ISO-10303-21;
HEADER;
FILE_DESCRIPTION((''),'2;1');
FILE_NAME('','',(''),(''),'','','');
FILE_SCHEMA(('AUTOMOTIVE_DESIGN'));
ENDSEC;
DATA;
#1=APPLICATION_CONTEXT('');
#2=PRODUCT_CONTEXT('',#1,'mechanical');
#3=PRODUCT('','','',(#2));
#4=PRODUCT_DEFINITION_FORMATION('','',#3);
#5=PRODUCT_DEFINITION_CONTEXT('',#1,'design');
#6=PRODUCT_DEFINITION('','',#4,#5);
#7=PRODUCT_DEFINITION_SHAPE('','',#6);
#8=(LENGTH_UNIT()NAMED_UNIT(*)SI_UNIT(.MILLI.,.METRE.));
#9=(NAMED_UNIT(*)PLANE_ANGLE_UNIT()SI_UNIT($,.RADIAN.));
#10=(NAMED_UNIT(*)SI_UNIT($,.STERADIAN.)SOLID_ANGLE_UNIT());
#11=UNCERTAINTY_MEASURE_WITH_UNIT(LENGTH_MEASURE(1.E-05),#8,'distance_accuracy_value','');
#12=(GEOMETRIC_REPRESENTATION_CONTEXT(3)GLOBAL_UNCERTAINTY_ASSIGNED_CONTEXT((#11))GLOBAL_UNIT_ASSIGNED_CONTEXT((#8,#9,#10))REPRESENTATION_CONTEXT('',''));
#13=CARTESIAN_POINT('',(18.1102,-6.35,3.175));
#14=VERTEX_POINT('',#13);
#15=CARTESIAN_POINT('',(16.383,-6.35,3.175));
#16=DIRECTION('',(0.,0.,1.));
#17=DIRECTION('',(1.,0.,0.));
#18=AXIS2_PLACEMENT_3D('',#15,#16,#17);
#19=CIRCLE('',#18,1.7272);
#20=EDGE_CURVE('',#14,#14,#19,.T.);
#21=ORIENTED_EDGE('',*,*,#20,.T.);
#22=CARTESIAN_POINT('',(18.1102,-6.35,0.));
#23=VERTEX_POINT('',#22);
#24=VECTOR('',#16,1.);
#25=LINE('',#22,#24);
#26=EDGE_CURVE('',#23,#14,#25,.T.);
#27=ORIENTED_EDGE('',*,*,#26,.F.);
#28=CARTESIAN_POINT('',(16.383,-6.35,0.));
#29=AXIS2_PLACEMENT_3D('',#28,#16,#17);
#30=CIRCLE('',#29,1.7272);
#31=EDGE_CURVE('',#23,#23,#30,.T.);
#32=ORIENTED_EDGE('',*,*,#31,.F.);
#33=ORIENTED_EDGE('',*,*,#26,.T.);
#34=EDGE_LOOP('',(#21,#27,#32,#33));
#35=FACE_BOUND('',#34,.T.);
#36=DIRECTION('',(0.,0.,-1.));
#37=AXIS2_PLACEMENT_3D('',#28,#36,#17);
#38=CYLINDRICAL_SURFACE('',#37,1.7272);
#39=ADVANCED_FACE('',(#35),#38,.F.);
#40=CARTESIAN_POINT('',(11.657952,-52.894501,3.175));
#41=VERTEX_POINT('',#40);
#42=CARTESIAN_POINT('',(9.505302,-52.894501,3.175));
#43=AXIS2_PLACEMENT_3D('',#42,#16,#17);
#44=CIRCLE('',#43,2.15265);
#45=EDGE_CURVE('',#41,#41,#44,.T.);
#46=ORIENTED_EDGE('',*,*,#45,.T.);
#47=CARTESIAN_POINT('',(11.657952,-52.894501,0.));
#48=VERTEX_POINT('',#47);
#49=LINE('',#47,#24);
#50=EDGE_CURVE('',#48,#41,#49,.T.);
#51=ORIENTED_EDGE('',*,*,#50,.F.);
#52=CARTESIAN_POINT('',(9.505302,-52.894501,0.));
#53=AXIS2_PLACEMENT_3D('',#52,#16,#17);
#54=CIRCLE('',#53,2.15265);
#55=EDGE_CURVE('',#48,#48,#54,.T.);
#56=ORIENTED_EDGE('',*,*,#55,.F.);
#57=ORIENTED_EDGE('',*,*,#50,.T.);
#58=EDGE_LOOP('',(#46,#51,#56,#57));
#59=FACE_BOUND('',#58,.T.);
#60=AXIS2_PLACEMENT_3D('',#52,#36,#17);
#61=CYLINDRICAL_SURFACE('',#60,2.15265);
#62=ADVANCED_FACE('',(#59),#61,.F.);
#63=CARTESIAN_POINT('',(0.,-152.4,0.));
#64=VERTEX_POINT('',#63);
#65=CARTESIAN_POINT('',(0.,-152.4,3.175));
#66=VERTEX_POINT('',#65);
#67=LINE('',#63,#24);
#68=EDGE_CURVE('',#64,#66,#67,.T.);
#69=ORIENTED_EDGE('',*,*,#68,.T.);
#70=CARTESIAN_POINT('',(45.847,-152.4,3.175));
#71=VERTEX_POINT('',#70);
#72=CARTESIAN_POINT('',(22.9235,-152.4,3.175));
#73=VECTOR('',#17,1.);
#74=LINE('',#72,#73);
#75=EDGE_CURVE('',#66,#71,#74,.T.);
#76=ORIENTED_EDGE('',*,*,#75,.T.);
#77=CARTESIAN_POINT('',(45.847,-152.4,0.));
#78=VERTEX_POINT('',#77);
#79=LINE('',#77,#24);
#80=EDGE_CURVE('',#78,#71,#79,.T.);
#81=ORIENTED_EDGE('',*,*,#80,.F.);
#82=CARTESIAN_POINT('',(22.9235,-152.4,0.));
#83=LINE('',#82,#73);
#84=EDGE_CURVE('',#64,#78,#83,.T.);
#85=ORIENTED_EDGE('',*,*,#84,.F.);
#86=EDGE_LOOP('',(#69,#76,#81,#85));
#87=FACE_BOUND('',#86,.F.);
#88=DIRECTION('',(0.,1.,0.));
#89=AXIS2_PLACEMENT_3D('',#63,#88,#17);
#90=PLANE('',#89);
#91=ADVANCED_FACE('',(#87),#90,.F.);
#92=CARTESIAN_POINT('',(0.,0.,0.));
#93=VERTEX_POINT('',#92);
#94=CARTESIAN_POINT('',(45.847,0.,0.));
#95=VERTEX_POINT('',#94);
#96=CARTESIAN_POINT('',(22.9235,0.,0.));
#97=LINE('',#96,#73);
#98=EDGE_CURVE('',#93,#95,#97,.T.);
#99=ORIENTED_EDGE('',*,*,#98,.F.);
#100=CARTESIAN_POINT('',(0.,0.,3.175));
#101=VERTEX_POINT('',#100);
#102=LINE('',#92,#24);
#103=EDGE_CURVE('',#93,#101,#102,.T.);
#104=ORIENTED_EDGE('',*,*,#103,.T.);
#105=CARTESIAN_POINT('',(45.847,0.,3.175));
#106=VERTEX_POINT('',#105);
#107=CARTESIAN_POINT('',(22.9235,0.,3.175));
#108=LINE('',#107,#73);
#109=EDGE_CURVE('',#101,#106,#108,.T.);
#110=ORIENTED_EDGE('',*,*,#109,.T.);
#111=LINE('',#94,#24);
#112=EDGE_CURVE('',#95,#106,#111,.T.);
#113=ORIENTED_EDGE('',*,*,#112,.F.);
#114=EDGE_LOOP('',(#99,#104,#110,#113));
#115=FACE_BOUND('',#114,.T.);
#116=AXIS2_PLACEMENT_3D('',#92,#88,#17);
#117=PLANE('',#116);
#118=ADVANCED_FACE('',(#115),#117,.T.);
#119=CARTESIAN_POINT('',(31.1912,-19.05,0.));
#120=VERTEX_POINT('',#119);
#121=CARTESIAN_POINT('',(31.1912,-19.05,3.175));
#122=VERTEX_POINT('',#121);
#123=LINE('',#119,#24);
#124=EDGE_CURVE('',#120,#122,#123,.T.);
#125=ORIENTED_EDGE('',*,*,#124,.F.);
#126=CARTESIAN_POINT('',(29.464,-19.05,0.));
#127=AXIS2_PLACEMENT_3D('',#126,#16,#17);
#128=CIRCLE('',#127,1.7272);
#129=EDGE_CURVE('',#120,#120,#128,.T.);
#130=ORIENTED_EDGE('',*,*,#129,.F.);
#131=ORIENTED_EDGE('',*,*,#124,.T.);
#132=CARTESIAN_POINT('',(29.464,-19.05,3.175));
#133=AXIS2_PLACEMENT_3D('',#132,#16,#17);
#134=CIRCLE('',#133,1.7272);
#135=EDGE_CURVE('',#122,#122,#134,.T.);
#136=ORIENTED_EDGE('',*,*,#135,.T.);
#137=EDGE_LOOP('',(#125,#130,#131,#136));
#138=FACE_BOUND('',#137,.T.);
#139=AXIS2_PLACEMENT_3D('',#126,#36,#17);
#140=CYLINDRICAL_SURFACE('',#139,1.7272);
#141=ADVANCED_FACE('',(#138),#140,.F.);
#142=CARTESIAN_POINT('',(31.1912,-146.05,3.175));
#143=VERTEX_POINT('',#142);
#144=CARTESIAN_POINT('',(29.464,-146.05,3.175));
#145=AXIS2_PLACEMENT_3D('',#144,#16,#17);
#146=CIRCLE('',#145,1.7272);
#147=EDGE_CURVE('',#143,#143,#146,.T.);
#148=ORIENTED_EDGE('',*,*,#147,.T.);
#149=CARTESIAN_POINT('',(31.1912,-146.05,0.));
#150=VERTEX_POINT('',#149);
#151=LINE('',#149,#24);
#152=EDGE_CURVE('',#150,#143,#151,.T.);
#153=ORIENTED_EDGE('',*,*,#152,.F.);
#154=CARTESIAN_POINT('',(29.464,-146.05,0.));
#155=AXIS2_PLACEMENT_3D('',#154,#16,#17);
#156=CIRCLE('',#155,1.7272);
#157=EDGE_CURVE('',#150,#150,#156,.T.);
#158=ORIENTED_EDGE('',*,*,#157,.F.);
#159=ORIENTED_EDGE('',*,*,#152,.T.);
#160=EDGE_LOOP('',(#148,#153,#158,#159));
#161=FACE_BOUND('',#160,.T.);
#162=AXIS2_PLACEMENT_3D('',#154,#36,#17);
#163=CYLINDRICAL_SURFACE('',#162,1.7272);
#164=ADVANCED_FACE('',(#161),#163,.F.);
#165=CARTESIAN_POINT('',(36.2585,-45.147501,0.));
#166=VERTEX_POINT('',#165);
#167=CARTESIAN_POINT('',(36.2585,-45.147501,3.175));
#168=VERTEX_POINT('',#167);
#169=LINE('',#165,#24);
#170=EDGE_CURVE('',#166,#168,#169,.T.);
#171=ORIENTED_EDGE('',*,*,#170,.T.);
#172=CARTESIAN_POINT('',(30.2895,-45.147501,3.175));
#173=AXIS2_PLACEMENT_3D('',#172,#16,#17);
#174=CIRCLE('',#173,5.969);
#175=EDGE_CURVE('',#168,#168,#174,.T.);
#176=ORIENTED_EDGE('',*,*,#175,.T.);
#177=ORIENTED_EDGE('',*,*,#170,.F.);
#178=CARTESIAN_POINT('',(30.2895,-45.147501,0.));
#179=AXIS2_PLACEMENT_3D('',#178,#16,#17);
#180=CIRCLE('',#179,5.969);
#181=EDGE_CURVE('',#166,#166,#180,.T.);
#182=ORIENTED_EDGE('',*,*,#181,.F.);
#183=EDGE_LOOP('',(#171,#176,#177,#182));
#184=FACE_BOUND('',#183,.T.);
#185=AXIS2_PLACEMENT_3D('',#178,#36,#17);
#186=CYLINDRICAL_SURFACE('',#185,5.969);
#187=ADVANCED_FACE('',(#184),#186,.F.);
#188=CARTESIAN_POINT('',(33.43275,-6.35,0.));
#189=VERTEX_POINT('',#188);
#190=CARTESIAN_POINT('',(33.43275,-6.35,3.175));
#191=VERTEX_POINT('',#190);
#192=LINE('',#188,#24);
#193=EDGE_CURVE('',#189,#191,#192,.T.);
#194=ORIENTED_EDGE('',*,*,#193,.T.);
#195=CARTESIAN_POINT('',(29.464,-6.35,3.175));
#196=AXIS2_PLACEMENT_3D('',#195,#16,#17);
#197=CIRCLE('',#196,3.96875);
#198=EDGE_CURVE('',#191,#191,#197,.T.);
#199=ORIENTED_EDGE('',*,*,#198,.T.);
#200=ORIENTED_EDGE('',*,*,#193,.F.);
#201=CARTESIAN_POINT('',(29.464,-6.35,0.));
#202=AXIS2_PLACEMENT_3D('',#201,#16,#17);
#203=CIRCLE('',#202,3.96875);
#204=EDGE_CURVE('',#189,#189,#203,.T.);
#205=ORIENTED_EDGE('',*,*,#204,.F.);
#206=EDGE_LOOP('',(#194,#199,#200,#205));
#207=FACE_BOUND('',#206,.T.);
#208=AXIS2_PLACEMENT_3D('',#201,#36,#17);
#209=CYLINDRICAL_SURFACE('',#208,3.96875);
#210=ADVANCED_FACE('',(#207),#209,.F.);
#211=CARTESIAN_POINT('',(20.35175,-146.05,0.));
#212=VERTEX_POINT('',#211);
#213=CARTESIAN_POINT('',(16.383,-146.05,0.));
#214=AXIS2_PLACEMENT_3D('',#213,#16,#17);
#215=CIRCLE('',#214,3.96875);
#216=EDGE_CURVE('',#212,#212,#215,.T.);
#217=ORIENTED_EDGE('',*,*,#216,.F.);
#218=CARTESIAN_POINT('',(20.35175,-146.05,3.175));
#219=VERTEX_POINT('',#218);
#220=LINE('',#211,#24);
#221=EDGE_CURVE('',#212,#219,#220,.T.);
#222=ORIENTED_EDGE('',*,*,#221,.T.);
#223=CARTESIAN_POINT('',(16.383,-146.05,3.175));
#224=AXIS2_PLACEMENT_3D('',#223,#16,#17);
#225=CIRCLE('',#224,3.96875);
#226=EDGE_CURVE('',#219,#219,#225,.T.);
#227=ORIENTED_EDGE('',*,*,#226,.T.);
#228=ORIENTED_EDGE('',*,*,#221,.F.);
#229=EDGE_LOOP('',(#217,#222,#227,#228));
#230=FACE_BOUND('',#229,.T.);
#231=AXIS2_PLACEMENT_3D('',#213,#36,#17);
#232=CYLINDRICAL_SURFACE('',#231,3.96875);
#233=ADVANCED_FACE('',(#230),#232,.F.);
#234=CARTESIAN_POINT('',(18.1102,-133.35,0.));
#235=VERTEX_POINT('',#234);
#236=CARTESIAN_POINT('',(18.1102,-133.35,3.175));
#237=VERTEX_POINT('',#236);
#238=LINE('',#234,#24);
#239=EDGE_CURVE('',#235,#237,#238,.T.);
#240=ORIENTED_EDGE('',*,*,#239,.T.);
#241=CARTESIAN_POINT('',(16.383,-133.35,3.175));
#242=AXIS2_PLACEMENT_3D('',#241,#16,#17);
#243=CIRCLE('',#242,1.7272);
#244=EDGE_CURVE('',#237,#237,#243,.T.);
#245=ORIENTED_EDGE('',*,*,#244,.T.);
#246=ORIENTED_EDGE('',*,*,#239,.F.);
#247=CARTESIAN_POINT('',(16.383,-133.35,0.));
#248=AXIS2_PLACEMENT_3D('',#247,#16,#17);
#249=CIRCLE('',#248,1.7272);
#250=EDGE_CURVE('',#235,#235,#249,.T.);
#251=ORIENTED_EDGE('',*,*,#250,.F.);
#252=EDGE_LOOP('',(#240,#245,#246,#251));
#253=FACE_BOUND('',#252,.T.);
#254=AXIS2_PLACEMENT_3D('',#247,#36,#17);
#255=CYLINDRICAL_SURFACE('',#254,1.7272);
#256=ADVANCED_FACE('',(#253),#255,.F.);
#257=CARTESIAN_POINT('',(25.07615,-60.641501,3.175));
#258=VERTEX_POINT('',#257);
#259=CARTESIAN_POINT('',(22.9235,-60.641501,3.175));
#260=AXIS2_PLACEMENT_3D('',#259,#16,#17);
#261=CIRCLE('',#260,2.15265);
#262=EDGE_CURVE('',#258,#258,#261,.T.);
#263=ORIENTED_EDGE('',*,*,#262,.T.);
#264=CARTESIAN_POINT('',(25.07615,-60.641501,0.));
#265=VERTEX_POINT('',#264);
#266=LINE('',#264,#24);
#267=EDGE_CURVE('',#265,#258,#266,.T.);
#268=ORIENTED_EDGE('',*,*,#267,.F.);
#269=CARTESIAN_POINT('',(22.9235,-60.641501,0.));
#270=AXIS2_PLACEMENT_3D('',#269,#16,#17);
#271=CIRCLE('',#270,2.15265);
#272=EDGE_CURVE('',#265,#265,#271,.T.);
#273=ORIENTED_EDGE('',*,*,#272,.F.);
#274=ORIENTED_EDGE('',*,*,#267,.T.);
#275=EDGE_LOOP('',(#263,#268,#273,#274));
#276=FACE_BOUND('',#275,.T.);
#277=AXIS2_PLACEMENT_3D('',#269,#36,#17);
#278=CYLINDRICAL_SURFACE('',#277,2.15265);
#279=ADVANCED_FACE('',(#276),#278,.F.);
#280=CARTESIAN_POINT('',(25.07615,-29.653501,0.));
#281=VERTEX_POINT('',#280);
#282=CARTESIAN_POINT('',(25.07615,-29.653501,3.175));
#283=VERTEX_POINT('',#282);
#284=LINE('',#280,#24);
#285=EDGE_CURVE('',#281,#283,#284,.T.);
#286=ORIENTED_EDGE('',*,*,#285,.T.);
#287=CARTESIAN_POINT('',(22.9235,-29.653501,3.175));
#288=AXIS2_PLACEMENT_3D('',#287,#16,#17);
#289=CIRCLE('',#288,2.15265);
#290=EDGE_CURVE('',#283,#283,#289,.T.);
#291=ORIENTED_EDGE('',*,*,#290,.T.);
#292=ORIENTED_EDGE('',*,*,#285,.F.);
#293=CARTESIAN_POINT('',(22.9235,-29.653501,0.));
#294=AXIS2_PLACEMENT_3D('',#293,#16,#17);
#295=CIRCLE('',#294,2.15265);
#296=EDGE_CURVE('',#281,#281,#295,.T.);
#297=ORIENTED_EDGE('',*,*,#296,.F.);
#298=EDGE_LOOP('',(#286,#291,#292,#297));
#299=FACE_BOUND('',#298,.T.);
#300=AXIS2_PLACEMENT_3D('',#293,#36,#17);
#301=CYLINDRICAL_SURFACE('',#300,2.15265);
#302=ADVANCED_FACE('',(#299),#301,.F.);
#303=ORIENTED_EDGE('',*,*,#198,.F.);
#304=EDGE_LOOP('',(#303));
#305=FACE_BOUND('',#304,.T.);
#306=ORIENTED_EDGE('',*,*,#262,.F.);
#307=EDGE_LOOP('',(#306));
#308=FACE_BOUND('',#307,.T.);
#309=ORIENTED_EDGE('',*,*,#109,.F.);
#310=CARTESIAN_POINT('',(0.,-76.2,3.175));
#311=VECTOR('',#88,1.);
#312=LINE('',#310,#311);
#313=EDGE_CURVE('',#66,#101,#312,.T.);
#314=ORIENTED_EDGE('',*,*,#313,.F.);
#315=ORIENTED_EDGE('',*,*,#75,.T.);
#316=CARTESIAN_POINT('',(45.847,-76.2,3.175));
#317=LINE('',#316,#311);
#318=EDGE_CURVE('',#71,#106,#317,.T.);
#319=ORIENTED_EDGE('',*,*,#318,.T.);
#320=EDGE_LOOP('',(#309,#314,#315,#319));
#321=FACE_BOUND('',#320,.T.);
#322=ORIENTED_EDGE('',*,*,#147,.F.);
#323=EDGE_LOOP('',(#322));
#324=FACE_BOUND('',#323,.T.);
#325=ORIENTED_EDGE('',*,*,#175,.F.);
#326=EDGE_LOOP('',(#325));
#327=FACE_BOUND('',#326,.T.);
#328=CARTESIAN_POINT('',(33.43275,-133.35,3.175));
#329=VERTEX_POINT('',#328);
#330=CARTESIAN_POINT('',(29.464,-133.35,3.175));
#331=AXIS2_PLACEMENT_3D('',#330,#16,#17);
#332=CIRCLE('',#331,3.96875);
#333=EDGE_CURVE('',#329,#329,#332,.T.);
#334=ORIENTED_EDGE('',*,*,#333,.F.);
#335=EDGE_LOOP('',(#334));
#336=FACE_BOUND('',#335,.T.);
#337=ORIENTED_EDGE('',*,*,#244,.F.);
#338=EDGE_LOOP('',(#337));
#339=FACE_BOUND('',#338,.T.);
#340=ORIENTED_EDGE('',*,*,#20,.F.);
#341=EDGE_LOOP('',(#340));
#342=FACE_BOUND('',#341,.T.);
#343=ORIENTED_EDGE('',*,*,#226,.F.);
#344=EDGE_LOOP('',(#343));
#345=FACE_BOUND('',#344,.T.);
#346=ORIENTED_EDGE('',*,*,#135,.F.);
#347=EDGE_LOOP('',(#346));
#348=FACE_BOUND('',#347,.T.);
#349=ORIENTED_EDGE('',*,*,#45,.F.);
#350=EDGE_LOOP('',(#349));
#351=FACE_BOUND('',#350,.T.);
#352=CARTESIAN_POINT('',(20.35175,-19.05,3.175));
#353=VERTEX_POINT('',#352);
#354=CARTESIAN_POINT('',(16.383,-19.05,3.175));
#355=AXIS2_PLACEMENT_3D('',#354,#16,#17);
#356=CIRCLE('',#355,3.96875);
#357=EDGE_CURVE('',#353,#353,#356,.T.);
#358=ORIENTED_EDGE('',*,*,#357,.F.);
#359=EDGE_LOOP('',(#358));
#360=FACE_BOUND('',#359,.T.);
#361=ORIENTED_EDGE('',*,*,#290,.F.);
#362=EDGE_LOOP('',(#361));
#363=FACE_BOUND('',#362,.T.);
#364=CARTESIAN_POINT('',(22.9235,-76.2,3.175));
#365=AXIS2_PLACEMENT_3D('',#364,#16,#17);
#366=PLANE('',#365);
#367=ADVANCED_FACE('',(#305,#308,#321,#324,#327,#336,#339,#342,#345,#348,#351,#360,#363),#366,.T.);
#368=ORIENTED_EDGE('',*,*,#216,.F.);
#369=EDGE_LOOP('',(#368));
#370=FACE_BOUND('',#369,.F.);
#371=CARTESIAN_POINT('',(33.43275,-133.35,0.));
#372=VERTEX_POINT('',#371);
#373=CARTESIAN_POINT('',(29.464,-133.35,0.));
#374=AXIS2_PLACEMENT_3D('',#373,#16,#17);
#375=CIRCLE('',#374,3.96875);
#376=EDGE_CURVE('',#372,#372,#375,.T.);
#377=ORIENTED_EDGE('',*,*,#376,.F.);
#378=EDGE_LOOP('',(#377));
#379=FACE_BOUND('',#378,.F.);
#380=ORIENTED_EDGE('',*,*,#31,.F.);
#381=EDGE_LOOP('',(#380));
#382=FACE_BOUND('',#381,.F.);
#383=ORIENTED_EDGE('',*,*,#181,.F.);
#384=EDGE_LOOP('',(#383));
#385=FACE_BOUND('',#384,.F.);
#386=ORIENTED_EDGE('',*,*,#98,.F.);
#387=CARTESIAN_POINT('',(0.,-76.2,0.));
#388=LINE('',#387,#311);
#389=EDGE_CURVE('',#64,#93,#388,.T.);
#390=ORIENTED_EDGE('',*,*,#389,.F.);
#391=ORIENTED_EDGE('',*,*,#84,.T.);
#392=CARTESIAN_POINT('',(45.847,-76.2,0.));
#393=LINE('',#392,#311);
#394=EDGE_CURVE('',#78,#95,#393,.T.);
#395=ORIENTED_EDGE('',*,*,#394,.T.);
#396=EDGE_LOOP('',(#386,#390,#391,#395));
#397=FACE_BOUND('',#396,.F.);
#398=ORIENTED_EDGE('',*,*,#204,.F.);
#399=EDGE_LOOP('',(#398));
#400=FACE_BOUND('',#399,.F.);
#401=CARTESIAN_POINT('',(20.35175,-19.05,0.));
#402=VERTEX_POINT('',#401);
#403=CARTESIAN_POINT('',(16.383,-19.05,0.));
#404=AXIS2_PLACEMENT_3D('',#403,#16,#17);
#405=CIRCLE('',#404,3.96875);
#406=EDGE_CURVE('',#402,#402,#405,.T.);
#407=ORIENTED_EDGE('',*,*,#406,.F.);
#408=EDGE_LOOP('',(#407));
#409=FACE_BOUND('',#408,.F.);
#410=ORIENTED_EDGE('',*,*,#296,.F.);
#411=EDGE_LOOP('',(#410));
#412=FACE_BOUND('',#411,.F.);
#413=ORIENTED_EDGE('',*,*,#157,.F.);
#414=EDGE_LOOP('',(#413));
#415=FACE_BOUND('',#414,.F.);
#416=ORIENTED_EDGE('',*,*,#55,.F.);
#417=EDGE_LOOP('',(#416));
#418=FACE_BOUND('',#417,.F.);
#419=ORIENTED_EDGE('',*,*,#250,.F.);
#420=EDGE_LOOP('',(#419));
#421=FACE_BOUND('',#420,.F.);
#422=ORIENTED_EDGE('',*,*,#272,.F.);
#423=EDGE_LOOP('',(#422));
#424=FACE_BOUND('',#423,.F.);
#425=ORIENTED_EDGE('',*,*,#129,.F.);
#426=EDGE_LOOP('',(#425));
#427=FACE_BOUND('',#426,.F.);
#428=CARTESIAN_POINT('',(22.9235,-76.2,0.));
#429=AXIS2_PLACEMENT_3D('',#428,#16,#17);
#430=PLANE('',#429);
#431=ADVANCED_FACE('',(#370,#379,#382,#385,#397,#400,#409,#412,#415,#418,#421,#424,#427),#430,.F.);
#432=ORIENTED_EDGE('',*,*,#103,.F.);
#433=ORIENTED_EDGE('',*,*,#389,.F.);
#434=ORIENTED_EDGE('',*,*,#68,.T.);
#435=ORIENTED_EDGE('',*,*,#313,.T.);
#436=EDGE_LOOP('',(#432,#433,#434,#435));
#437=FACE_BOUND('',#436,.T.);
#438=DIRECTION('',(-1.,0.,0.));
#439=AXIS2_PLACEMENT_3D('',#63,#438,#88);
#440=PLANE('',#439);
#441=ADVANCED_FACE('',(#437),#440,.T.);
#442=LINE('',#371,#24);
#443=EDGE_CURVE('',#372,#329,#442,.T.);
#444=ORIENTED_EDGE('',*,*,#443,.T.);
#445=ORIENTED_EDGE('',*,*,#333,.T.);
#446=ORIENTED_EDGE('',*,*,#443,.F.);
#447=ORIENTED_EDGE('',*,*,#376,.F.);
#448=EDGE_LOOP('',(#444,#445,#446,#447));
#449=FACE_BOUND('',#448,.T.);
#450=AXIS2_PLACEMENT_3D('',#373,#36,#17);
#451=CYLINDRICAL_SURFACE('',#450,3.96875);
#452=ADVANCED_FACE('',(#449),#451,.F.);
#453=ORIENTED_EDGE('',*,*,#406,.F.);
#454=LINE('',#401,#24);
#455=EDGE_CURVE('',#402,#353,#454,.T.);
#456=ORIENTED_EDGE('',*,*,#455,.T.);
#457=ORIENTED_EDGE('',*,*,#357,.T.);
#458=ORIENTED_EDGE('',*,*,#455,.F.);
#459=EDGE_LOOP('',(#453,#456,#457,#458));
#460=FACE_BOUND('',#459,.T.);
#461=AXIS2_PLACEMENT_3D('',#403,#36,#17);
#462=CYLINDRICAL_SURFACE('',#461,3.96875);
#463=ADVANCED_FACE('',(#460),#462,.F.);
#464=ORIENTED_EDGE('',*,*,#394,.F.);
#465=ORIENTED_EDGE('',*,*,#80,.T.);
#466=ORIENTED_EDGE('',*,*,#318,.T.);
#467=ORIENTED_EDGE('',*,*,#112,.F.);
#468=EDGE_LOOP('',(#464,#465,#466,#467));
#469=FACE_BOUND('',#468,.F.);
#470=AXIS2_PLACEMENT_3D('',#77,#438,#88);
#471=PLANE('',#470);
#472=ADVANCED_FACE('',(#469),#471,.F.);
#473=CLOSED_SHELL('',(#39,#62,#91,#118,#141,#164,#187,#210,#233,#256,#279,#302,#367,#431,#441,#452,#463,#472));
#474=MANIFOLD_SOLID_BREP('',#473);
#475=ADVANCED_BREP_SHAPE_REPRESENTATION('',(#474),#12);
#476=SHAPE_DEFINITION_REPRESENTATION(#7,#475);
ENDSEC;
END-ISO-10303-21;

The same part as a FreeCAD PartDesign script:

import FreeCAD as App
import Part
import Sketcher
Q = App.Units.Quantity

doc = App.newDocument("Part")
body = doc.addObject("PartDesign::Body", "Body")

sketch1 = body.newObject("Sketcher::SketchObject", "Sketch")
sketch1.AttachmentSupport = (doc.getObject("XY_Plane"), [""])
sketch1.MapMode = "FlatFace"
sketch1.addGeometry([
    Part.LineSegment(App.Vector(0, 0, 0), App.Vector(0, -152.4, 0)),
    Part.LineSegment(App.Vector(0, -152.4, 0), App.Vector(45.8, -152.4, 0)),
    Part.LineSegment(App.Vector(45.8, -152.4, 0), App.Vector(45.8, 0, 0)),
    Part.LineSegment(App.Vector(45.8, 0, 0), App.Vector(0, 0, 0)),
    Part.Circle(App.Vector(16.4, -146.1, 0), App.Vector(0, 0, 1), 4),
    Part.Circle(App.Vector(16.4, -133.3, 0), App.Vector(0, 0, 1), 1.7),
    Part.Circle(App.Vector(29.5, -146.1, 0), App.Vector(0, 0, 1), 1.7),
    Part.Circle(App.Vector(29.5, -133.3, 0), App.Vector(0, 0, 1), 4),
    Part.Circle(App.Vector(9.5, -52.9, 0), App.Vector(0, 0, 1), 2.2),
    Part.Circle(App.Vector(16.4, -19.1, 0), App.Vector(0, 0, 1), 4),
    Part.Circle(App.Vector(16.4, -6.3, 0), App.Vector(0, 0, 1), 1.7),
    Part.Circle(App.Vector(22.9, -60.6, 0), App.Vector(0, 0, 1), 2.2),
    Part.Circle(App.Vector(30.3, -45.1, 0), App.Vector(0, 0, 1), 6),
    Part.Circle(App.Vector(22.9, -29.7, 0), App.Vector(0, 0, 1), 2.2),
    Part.Circle(App.Vector(29.5, -19.1, 0), App.Vector(0, 0, 1), 1.7),
    Part.Circle(App.Vector(29.5, -6.3, 0), App.Vector(0, 0, 1), 4),
], False)
sketch1.addConstraint([
    Sketcher.Constraint("Coincident", 0, 2, 1, 1),
    Sketcher.Constraint("Coincident", 1, 2, 2, 1),
    Sketcher.Constraint("Coincident", 2, 2, 3, 1),
    Sketcher.Constraint("Coincident", 3, 2, 0, 1),
    Sketcher.Constraint("Vertical", 0),
    Sketcher.Constraint("Horizontal", 1),
    Sketcher.Constraint("Vertical", 2),
    Sketcher.Constraint("Horizontal", 3),
    Sketcher.Constraint("Coincident", 3, 2, -1, 1),
    Sketcher.Constraint("Equal", 5, 6),
    Sketcher.Constraint("Equal", 4, 7),
    Sketcher.Constraint("Equal", 7, 9),
    Sketcher.Constraint("Equal", 6, 10),
    Sketcher.Constraint("Equal", 8, 11),
    Sketcher.Constraint("Equal", 11, 13),
    Sketcher.Constraint("Equal", 10, 14),
    Sketcher.Constraint("Equal", 9, 15),
    Sketcher.Constraint("Horizontal", 4, 3, 6, 3),
    Sketcher.Constraint("Horizontal", 5, 3, 7, 3),
    Sketcher.Constraint("Horizontal", 9, 3, 14, 3),
    Sketcher.Constraint("Horizontal", 10, 3, 15, 3),
    Sketcher.Constraint("Vertical", 4, 3, 5, 3),
    Sketcher.Constraint("Vertical", 6, 3, 7, 3),
    Sketcher.Constraint("Vertical", 5, 3, 9, 3),
    Sketcher.Constraint("Vertical", 9, 3, 10, 3),
    Sketcher.Constraint("Vertical", 11, 3, 13, 3),
    Sketcher.Constraint("Vertical", 7, 3, 14, 3),
    Sketcher.Constraint("Vertical", 14, 3, 15, 3),
    Sketcher.Constraint("Diameter", 12, Q("0.47 in")),
    Sketcher.Constraint("DistanceY", 0, 2, 0, 1, Q("6 in")),
    Sketcher.Constraint("Diameter", 4, Q("0.3125 in")),
    Sketcher.Constraint("Diameter", 5, Q("0.136 in")),
    Sketcher.Constraint("DistanceY", 4, 3, 9, 3, Q("5 in")),
    Sketcher.Constraint("DistanceY", 5, 3, 10, 3, Q("5 in")),
    Sketcher.Constraint("Diameter", 8, Q("0.1695 in")),
    Sketcher.Constraint("DistanceY", 4, 3, 5, 3, Q("0.5 in")),
    Sketcher.Constraint("DistanceX", 1, 1, 1, 2, Q("1.805 in")),
    Sketcher.Constraint("DistanceY", 4, 3, -1, 1, Q("5.75 in")),
    Sketcher.Constraint("DistanceX", -1, 1, 6, 3, Q("1.16 in")),
    Sketcher.Constraint("DistanceX", 11, 3, 12, 3, Q("0.29 in")),
    Sketcher.Constraint("DistanceY", 11, 3, 12, 3, Q("0.61 in")),
    Sketcher.Constraint("DistanceY", 12, 3, 13, 3, Q("0.61 in")),
    Sketcher.Constraint("DistanceX", 4, 3, 1, 2, Q("1.16 in")),
    Sketcher.Constraint("DistanceY", 11, 3, 8, 3, Q("0.305 in")),
    Sketcher.Constraint("DistanceX", -1, 1, 11, 3, Q("0.9025 in")),
    Sketcher.Constraint("DistanceY", 8, 3, -1, 1, 52.894501),
    Sketcher.Constraint("DistanceX", 8, 3, 12, 3, 20.784198),
])
pad1 = body.newObject("PartDesign::Pad", "Pad")
pad1.Profile = sketch1
pad1.Length = Q("0.125 in")

doc.recompute()
